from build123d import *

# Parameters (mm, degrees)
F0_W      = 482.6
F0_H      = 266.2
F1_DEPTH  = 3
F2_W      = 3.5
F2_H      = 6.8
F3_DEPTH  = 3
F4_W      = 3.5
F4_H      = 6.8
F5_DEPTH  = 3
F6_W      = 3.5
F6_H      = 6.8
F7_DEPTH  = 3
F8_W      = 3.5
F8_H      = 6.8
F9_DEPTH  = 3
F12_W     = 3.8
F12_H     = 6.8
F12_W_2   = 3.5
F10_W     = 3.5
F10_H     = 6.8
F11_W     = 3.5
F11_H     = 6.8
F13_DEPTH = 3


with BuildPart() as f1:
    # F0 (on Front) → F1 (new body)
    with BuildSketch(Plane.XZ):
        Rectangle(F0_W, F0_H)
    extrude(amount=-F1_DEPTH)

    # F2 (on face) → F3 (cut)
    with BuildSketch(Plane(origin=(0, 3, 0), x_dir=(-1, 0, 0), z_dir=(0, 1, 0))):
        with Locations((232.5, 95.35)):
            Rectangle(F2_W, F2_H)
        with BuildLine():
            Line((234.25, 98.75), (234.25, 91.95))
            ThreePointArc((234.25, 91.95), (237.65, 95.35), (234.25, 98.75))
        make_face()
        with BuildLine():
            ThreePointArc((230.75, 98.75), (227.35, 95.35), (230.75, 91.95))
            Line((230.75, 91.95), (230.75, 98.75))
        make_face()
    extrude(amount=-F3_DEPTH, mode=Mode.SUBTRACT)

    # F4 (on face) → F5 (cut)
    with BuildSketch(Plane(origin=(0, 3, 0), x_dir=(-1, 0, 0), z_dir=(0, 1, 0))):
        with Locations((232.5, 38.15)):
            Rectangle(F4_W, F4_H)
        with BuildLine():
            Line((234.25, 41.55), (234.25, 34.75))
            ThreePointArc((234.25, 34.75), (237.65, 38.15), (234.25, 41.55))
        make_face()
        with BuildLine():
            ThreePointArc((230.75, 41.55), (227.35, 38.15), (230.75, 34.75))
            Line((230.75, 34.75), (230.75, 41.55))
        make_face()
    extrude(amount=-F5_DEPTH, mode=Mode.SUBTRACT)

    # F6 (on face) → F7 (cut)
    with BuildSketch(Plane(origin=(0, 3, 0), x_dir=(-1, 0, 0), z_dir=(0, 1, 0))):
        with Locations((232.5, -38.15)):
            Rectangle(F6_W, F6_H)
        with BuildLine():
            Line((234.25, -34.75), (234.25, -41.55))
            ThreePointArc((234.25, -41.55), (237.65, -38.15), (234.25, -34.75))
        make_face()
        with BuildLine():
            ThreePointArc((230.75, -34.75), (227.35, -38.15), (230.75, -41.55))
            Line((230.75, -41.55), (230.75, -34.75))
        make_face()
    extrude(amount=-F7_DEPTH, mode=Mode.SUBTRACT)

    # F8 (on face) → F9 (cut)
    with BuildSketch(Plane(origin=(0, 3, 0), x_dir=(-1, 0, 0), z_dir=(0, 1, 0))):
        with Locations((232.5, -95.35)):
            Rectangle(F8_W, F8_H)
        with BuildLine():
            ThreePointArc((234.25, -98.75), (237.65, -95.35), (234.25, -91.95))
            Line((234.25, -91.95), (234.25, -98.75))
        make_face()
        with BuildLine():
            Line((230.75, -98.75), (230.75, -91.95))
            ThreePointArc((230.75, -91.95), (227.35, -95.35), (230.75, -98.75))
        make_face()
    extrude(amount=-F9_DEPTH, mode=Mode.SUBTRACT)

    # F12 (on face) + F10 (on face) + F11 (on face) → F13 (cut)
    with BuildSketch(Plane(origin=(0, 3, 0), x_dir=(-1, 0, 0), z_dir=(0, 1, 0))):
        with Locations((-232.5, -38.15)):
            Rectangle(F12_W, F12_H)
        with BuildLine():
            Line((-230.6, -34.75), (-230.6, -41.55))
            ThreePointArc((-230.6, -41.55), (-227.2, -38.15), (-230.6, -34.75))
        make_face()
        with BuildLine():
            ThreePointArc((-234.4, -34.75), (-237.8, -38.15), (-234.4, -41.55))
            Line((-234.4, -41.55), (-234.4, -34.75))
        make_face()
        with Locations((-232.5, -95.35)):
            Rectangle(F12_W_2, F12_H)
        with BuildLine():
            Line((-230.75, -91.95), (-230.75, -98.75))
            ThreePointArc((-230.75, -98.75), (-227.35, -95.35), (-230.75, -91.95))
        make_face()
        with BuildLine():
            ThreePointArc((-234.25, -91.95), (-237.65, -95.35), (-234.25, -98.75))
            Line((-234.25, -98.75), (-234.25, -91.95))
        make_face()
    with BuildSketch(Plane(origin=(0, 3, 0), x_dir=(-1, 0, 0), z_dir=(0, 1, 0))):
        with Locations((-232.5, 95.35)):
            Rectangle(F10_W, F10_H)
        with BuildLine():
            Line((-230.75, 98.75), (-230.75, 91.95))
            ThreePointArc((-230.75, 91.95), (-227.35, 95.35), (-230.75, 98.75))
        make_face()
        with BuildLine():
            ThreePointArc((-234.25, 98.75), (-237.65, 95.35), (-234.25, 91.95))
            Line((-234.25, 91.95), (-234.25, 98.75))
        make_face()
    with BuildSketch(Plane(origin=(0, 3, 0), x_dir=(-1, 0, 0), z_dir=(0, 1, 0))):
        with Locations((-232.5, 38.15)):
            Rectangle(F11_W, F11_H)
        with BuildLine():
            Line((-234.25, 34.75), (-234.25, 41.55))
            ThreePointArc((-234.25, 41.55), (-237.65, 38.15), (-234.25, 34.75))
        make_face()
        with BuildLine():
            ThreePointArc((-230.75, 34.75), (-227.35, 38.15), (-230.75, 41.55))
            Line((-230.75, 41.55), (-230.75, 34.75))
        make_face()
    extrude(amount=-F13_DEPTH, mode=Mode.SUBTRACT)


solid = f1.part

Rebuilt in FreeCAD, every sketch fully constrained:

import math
import FreeCAD as App
import Part
import Sketcher
Q = App.Units.Quantity

doc = App.newDocument("Part")
params = doc.addObject("Spreadsheet::Sheet", "Params")
for row, (alias, value) in enumerate([
    ("sketch1_width", "482.6 mm"),
    ("sketch1_height", "266.2 mm"),
    ("pad1_length", "3 mm"),
    ("sketch2_radius", "3.4 mm"),
    ("sketch2_width", "3.5 mm"),
    ("pocket1_length", "3 mm"),
    ("sketch3_radius", "3.4 mm"),
    ("sketch3_width", "3.5 mm"),
    ("pocket2_length", "3 mm"),
    ("sketch4_radius", "3.4 mm"),
    ("sketch4_width", "3.5 mm"),
    ("pocket3_length", "3 mm"),
    ("sketch5_radius", "3.4 mm"),
    ("sketch5_width", "3.5 mm"),
    ("pocket4_length", "3 mm"),
    ("sketch6_radius", "3.4 mm"),
    ("sketch6_width", "3.8 mm"),
    ("sketch6_width2", "3.5 mm"),
    ("pocket5_length", "3 mm"),
], start=1):
    params.set(f"A{row}", alias)
    params.set(f"B{row}", "=" + value)
    params.setAlias(f"B{row}", alias)

body = doc.addObject("PartDesign::Body", "Body")

sketch1 = body.newObject("Sketcher::SketchObject", "Sketch")
sketch1.AttachmentSupport = (doc.getObject("XZ_Plane"), [""])
sketch1.MapMode = "FlatFace"
sketch1.addGeometry([
    Part.LineSegment(App.Vector(-241, 133, 0), App.Vector(-241, -133, 0)),
    Part.LineSegment(App.Vector(-241, -133, 0), App.Vector(241, -133, 0)),
    Part.LineSegment(App.Vector(241, -133, 0), App.Vector(241, 133, 0)),
    Part.LineSegment(App.Vector(241, 133, 0), App.Vector(-241, 133, 0)),
], False)
sketch1.addConstraint([
    Sketcher.Constraint("Coincident", 0, 2, 1, 1),
    Sketcher.Constraint("Coincident", 1, 2, 2, 1),
    Sketcher.Constraint("Coincident", 2, 2, 3, 1),
    Sketcher.Constraint("Coincident", 3, 2, 0, 1),
    Sketcher.Constraint("Vertical", 0),
    Sketcher.Constraint("Horizontal", 1),
    Sketcher.Constraint("Vertical", 2),
    Sketcher.Constraint("Horizontal", 3),
    Sketcher.Constraint("Symmetric", 0, 2, 2, 2, -1, 1),
    Sketcher.Constraint("DistanceX", 1, 1, 1, 2, Q("482.6 mm")),
    Sketcher.Constraint("DistanceY", 0, 2, 0, 1, Q("266.2 mm")),
])
sketch1.setExpression("Constraints[9]", "Params.sketch1_width")
sketch1.setExpression("Constraints[10]", "Params.sketch1_height")
pad1 = body.newObject("PartDesign::Pad", "Pad")
pad1.Profile = sketch1
pad1.setExpression("Length", "Params.pad1_length")
pad1.Reversed = True

sketch2 = body.newObject("Sketcher::SketchObject", "Sketch001")
sketch2.AttachmentSupport = (doc.getObject("XZ_Plane"), [""])
sketch2.MapMode = "FlatFace"
sketch2.AttachmentOffset = App.Placement(App.Vector(0, 0, -3), App.Rotation())
sketch2.addGeometry([
    Part.LineSegment(App.Vector(-230.8, 92, 0), App.Vector(-234.2, 92, 0)),
    Part.ArcOfCircle(Part.Circle(App.Vector(-234.2, 95.3, 0), App.Vector(0, 0, 1), 3.4), math.radians(90), math.radians(270)),
    Part.LineSegment(App.Vector(-234.2, 98.8, 0), App.Vector(-230.8, 98.8, 0)),
    Part.ArcOfCircle(Part.Circle(App.Vector(-230.8, 95.3, 0), App.Vector(0, 0, 1), 3.4), math.radians(-90), math.radians(90)),
], False)
sketch2.addConstraint([
    Sketcher.Constraint("Tangent", 0, 2, 1, 2),
    Sketcher.Constraint("Tangent", 1, 1, 2, 1),
    Sketcher.Constraint("Tangent", 2, 2, 3, 2),
    Sketcher.Constraint("Tangent", 3, 1, 0, 1),
    Sketcher.Constraint("Horizontal", 0),
    Sketcher.Constraint("Horizontal", 2),
    Sketcher.Constraint("Radius", 1, Q("3.4 mm")),
    Sketcher.Constraint("DistanceX", 0, 2, 0, 1, Q("3.5 mm")),
    Sketcher.Constraint("DistanceX", 1, 3, -1, 1, Q("234.25 mm")),
    Sketcher.Constraint("DistanceY", -1, 1, 1, 3, Q("95.35 mm")),
])
sketch2.setExpression("Constraints[6]", "Params.sketch2_radius")
sketch2.setExpression("Constraints[7]", "Params.sketch2_width")
pocket1 = body.newObject("PartDesign::Pocket", "Pocket")
pocket1.Profile = sketch2
pocket1.setExpression("Length", "Params.pocket1_length")
pocket1.Reversed = True

sketch3 = body.newObject("Sketcher::SketchObject", "Sketch002")
sketch3.AttachmentSupport = (doc.getObject("XZ_Plane"), [""])
sketch3.MapMode = "FlatFace"
sketch3.AttachmentOffset = App.Placement(App.Vector(0, 0, -3), App.Rotation())
sketch3.addGeometry([
    Part.LineSegment(App.Vector(-230.8, 34.8, 0), App.Vector(-234.2, 34.8, 0)),
    Part.ArcOfCircle(Part.Circle(App.Vector(-234.2, 38.1, 0), App.Vector(0, 0, 1), 3.4), math.radians(90), math.radians(270)),
    Part.LineSegment(App.Vector(-234.2, 41.5, 0), App.Vector(-230.8, 41.5, 0)),
    Part.ArcOfCircle(Part.Circle(App.Vector(-230.8, 38.1, 0), App.Vector(0, 0, 1), 3.4), math.radians(-90), math.radians(90)),
], False)
sketch3.addConstraint([
    Sketcher.Constraint("Tangent", 0, 2, 1, 2),
    Sketcher.Constraint("Tangent", 1, 1, 2, 1),
    Sketcher.Constraint("Tangent", 2, 2, 3, 2),
    Sketcher.Constraint("Tangent", 3, 1, 0, 1),
    Sketcher.Constraint("Horizontal", 0),
    Sketcher.Constraint("Horizontal", 2),
    Sketcher.Constraint("Radius", 1, Q("3.4 mm")),
    Sketcher.Constraint("DistanceX", 0, 2, 0, 1, Q("3.5 mm")),
    Sketcher.Constraint("DistanceX", 1, 3, -1, 1, Q("234.25 mm")),
    Sketcher.Constraint("DistanceY", -1, 1, 1, 3, Q("38.15 mm")),
])
sketch3.setExpression("Constraints[6]", "Params.sketch3_radius")
sketch3.setExpression("Constraints[7]", "Params.sketch3_width")
pocket2 = body.newObject("PartDesign::Pocket", "Pocket001")
pocket2.Profile = sketch3
pocket2.setExpression("Length", "Params.pocket2_length")
pocket2.Reversed = True

sketch4 = body.newObject("Sketcher::SketchObject", "Sketch003")
sketch4.AttachmentSupport = (doc.getObject("XZ_Plane"), [""])
sketch4.MapMode = "FlatFace"
sketch4.AttachmentOffset = App.Placement(App.Vector(0, 0, -3), App.Rotation())
sketch4.addGeometry([
    Part.LineSegment(App.Vector(-230.8, -41.5, 0), App.Vector(-234.2, -41.5, 0)),
    Part.ArcOfCircle(Part.Circle(App.Vector(-234.2, -38.1, 0), App.Vector(0, 0, 1), 3.4), math.radians(90), math.radians(270)),
    Part.LineSegment(App.Vector(-234.2, -34.8, 0), App.Vector(-230.8, -34.8, 0)),
    Part.ArcOfCircle(Part.Circle(App.Vector(-230.8, -38.1, 0), App.Vector(0, 0, 1), 3.4), math.radians(-90), math.radians(90)),
], False)
sketch4.addConstraint([
    Sketcher.Constraint("Tangent", 0, 2, 1, 2),
    Sketcher.Constraint("Tangent", 1, 1, 2, 1),
    Sketcher.Constraint("Tangent", 2, 2, 3, 2),
    Sketcher.Constraint("Tangent", 3, 1, 0, 1),
    Sketcher.Constraint("Horizontal", 0),
    Sketcher.Constraint("Horizontal", 2),
    Sketcher.Constraint("Radius", 1, Q("3.4 mm")),
    Sketcher.Constraint("DistanceX", 0, 2, 0, 1, Q("3.5 mm")),
    Sketcher.Constraint("DistanceX", 1, 3, -1, 1, Q("234.25 mm")),
    Sketcher.Constraint("DistanceY", 1, 3, -1, 1, Q("38.15 mm")),
])
sketch4.setExpression("Constraints[6]", "Params.sketch4_radius")
sketch4.setExpression("Constraints[7]", "Params.sketch4_width")
pocket3 = body.newObject("PartDesign::Pocket", "Pocket002")
pocket3.Profile = sketch4
pocket3.setExpression("Length", "Params.pocket3_length")
pocket3.Reversed = True

sketch5 = body.newObject("Sketcher::SketchObject", "Sketch004")
sketch5.AttachmentSupport = (doc.getObject("XZ_Plane"), [""])
sketch5.MapMode = "FlatFace"
sketch5.AttachmentOffset = App.Placement(App.Vector(0, 0, -3), App.Rotation())
sketch5.addGeometry([
    Part.LineSegment(App.Vector(-230.8, -98.8, 0), App.Vector(-234.2, -98.8, 0)),
    Part.ArcOfCircle(Part.Circle(App.Vector(-234.2, -95.3, 0), App.Vector(0, 0, 1), 3.4), math.radians(90), math.radians(270)),
    Part.LineSegment(App.Vector(-234.2, -92, 0), App.Vector(-230.8, -92, 0)),
    Part.ArcOfCircle(Part.Circle(App.Vector(-230.8, -95.3, 0), App.Vector(0, 0, 1), 3.4), math.radians(-90), math.radians(90)),
], False)
sketch5.addConstraint([
    Sketcher.Constraint("Tangent", 0, 2, 1, 2),
    Sketcher.Constraint("Tangent", 1, 1, 2, 1),
    Sketcher.Constraint("Tangent", 2, 2, 3, 2),
    Sketcher.Constraint("Tangent", 3, 1, 0, 1),
    Sketcher.Constraint("Horizontal", 0),
    Sketcher.Constraint("Horizontal", 2),
    Sketcher.Constraint("Radius", 1, Q("3.4 mm")),
    Sketcher.Constraint("DistanceX", 0, 2, 0, 1, Q("3.5 mm")),
    Sketcher.Constraint("DistanceX", 1, 3, -1, 1, Q("234.25 mm")),
    Sketcher.Constraint("DistanceY", 1, 3, -1, 1, Q("95.35 mm")),
])
sketch5.setExpression("Constraints[6]", "Params.sketch5_radius")
sketch5.setExpression("Constraints[7]", "Params.sketch5_width")
pocket4 = body.newObject("PartDesign::Pocket", "Pocket003")
pocket4.Profile = sketch5
pocket4.setExpression("Length", "Params.pocket4_length")
pocket4.Reversed = True

sketch6 = body.newObject("Sketcher::SketchObject", "Sketch005")
sketch6.AttachmentSupport = (doc.getObject("XZ_Plane"), [""])
sketch6.MapMode = "FlatFace"
sketch6.AttachmentOffset = App.Placement(App.Vector(0, 0, -3), App.Rotation())
sketch6.addGeometry([
    Part.LineSegment(App.Vector(234.4, -41.5, 0), App.Vector(230.6, -41.5, 0)),
    Part.ArcOfCircle(Part.Circle(App.Vector(230.6, -38.1, 0), App.Vector(0, 0, 1), 3.4), math.radians(90), math.radians(270)),
    Part.LineSegment(App.Vector(230.6, -34.8, 0), App.Vector(234.4, -34.8, 0)),
    Part.ArcOfCircle(Part.Circle(App.Vector(234.4, -38.1, 0), App.Vector(0, 0, 1), 3.4), math.radians(-90), math.radians(90)),
    Part.LineSegment(App.Vector(234.2, -98.8, 0), App.Vector(230.8, -98.8, 0)),
    Part.ArcOfCircle(Part.Circle(App.Vector(230.8, -95.3, 0), App.Vector(0, 0, 1), 3.4), math.radians(90), math.radians(270)),
    Part.LineSegment(App.Vector(230.8, -92, 0), App.Vector(234.2, -92, 0)),
    Part.ArcOfCircle(Part.Circle(App.Vector(234.2, -95.3, 0), App.Vector(0, 0, 1), 3.4), math.radians(-90), math.radians(90)),
    Part.LineSegment(App.Vector(234.2, 92, 0), App.Vector(230.8, 92, 0)),
    Part.ArcOfCircle(Part.Circle(App.Vector(230.8, 95.3, 0), App.Vector(0, 0, 1), 3.4), math.radians(90), math.radians(270)),
    Part.LineSegment(App.Vector(230.8, 98.8, 0), App.Vector(234.2, 98.8, 0)),
    Part.ArcOfCircle(Part.Circle(App.Vector(234.2, 95.3, 0), App.Vector(0, 0, 1), 3.4), math.radians(-90), math.radians(90)),
    Part.LineSegment(App.Vector(234.2, 34.8, 0), App.Vector(230.8, 34.8, 0)),
    Part.ArcOfCircle(Part.Circle(App.Vector(230.8, 38.1, 0), App.Vector(0, 0, 1), 3.4), math.radians(90), math.radians(270)),
    Part.LineSegment(App.Vector(230.8, 41.5, 0), App.Vector(234.2, 41.5, 0)),
    Part.ArcOfCircle(Part.Circle(App.Vector(234.2, 38.1, 0), App.Vector(0, 0, 1), 3.4), math.radians(-90), math.radians(90)),
], False)
sketch6.addConstraint([
    Sketcher.Constraint("Tangent", 0, 2, 1, 2),
    Sketcher.Constraint("Tangent", 1, 1, 2, 1),
    Sketcher.Constraint("Tangent", 2, 2, 3, 2),
    Sketcher.Constraint("Tangent", 3, 1, 0, 1),
    Sketcher.Constraint("Tangent", 4, 2, 5, 2),
    Sketcher.Constraint("Tangent", 5, 1, 6, 1),
    Sketcher.Constraint("Tangent", 6, 2, 7, 2),
    Sketcher.Constraint("Tangent", 7, 1, 4, 1),
    Sketcher.Constraint("Tangent", 8, 2, 9, 2),
    Sketcher.Constraint("Tangent", 9, 1, 10, 1),
    Sketcher.Constraint("Tangent", 10, 2, 11, 2),
    Sketcher.Constraint("Tangent", 11, 1, 8, 1),
    Sketcher.Constraint("Tangent", 12, 2, 13, 2),
    Sketcher.Constraint("Tangent", 13, 1, 14, 1),
    Sketcher.Constraint("Tangent", 14, 2, 15, 2),
    Sketcher.Constraint("Tangent", 15, 1, 12, 1),
    Sketcher.Constraint("Horizontal", 0),
    Sketcher.Constraint("Horizontal", 2),
    Sketcher.Constraint("Horizontal", 4),
    Sketcher.Constraint("Horizontal", 6),
    Sketcher.Constraint("Horizontal", 8),
    Sketcher.Constraint("Horizontal", 10),
    Sketcher.Constraint("Horizontal", 12),
    Sketcher.Constraint("Horizontal", 14),
    Sketcher.Constraint("Equal", 3, 5),
    Sketcher.Constraint("Equal", 7, 9),
    Sketcher.Constraint("Equal", 11, 13),
    Sketcher.Constraint("Symmetric", 5, 3, 9, 3, -1),
    Sketcher.Constraint("Vertical", 7, 3, 11, 3),
    Sketcher.Constraint("Vertical", 9, 3, 13, 3),
    Sketcher.Constraint("Vertical", 11, 3, 15, 3),
    Sketcher.Constraint("Radius", 1, Q("3.4 mm")),
    Sketcher.Constraint("DistanceX", 0, 2, 0, 1, Q("3.8 mm")),
    Sketcher.Constraint("DistanceX", 4, 2, 4, 1, Q("3.5 mm")),
    Sketcher.Constraint("DistanceX", -1, 1, 1, 3, Q("230.6 mm")),
    Sketcher.Constraint("DistanceY", 5, 3, 1, 3, Q("57.2 mm")),
    Sketcher.Constraint("DistanceY", 1, 3, 9, 3, Q("133.5 mm")),
    Sketcher.Constraint("DistanceY", 13, 3, 9, 3, Q("57.2 mm")),
    Sketcher.Constraint("DistanceX", -1, 1, 5, 3, Q("230.75 mm")),
])
sketch6.setExpression("Constraints[31]", "Params.sketch6_radius")
sketch6.setExpression("Constraints[32]", "Params.sketch6_width")
sketch6.setExpression("Constraints[33]", "Params.sketch6_width2")
pocket5 = body.newObject("PartDesign::Pocket", "Pocket004")
pocket5.Profile = sketch6
pocket5.setExpression("Length", "Params.pocket5_length")
pocket5.Reversed = True

doc.recompute()
